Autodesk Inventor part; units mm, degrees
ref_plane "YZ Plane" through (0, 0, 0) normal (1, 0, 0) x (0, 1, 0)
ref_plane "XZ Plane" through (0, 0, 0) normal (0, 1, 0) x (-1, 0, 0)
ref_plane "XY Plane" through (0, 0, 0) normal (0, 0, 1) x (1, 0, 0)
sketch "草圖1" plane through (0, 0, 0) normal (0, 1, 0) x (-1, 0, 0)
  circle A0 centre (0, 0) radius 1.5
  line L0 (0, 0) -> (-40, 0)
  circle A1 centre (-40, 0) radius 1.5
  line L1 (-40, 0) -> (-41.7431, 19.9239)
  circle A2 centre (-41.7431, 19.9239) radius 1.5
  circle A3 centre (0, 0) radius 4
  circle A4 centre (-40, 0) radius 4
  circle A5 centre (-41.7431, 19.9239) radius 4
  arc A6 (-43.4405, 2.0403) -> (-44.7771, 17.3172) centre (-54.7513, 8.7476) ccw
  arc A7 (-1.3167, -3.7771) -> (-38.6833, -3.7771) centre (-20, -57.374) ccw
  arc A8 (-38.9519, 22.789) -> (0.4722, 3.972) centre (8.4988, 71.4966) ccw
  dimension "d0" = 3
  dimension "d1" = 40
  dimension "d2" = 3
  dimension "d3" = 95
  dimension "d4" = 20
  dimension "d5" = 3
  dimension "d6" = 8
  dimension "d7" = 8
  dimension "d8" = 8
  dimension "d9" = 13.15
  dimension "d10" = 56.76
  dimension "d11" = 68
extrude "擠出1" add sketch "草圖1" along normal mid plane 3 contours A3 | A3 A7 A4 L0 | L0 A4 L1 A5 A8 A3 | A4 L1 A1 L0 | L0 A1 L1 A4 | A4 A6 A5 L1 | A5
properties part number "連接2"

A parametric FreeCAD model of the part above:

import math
import FreeCAD as App
import Part
import Sketcher
from FreeCAD import Vector
Q = App.Units.Quantity

doc = App.newDocument("Part")
body = doc.addObject("PartDesign::Body", "Body")

sketch1 = body.newObject("Sketcher::SketchObject", "Sketch")
sketch1.AttachmentSupport = (doc.getObject("XZ_Plane"), [""])
sketch1.MapMode = "FlatFace"
sketch1.addGeometry([
    Part.ArcOfCircle(Part.Circle(Vector(-8.4988, 71.4966, 0), Vector(0, 0, 1), 67.999994), math.radians(-83.221101), math.radians(-45.748879)),
    Part.ArcOfCircle(Part.Circle(Vector(41.7431, 19.9239, 0), Vector(0, 0, 1), 4), math.radians(-40.667946), math.radians(134.251469)),
    Part.ArcOfCircle(Part.Circle(Vector(54.7513, 8.7476, 0), Vector(0, 0, 1), 13.149984), math.radians(139.331597), math.radians(210.667924)),
    Part.ArcOfCircle(Part.Circle(Vector(40, 0, 0), Vector(0, 0, 1), 4), math.radians(-109.218595), math.radians(30.66897)),
    Part.ArcOfCircle(Part.Circle(Vector(20, -57.374, 0), Vector(0, 0, 1), 56.759963), math.radians(70.781997), math.radians(109.218003)),
    Part.ArcOfCircle(Part.Circle(Vector(0, 0, 0), Vector(0, 0, 1), 4), math.radians(96.779628), math.radians(289.218595)),
    Part.Circle(Vector(0, 0, 0), Vector(0, 0, 1), 1.5),
    Part.Circle(Vector(40, 0, 0), Vector(0, 0, 1), 1.5),
    Part.Circle(Vector(41.7431, 19.9239, 0), Vector(0, 0, 1), 1.5),
], False)
sketch1.addConstraint([
    Sketcher.Constraint("Tangent", 0, 2, 1, 2),
    Sketcher.Constraint("Tangent", 1, 1, 2, 1),
    Sketcher.Constraint("Tangent", 2, 2, 3, 2),
    Sketcher.Constraint("Tangent", 3, 1, 4, 1),
    Sketcher.Constraint("Tangent", 4, 2, 5, 2),
    Sketcher.Constraint("Tangent", 5, 1, 0, 1),
    Sketcher.Constraint("Coincident", 5, 3, -1, 1),
    Sketcher.Constraint("Coincident", 6, 3, -1, 1),
    Sketcher.Constraint("Coincident", 7, 3, 3, 3),
    Sketcher.Constraint("Coincident", 8, 3, 1, 3),
    Sketcher.Constraint("Equal", 1, 3),
    Sketcher.Constraint("Equal", 3, 5),
    Sketcher.Constraint("Equal", 6, 7),
    Sketcher.Constraint("Equal", 7, 8),
    Sketcher.Constraint("PointOnObject", 3, 3, -1),
    Sketcher.Constraint("Diameter", 6, Q("3 mm")),
    Sketcher.Constraint("Radius", 0, Q("68 mm")),
    Sketcher.Constraint("Radius", 1, Q("4 mm")),
    Sketcher.Constraint("Radius", 2, Q("13.15 mm")),
    Sketcher.Constraint("Radius", 4, Q("56.76 mm")),
    Sketcher.Constraint("DistanceX", -1, 1, 3, 3, Q("40 mm")),
    Sketcher.Constraint("DistanceX", 0, 3, 2, 3, Q("63.25 mm")),
    Sketcher.Constraint("DistanceX", -1, 1, 1, 3, Q("41.743 mm")),
])
pad1 = body.newObject("PartDesign::Pad", "Pad")
pad1.Profile = sketch1
pad1.Length = 3
pad1.Midplane = True

doc.recompute()
